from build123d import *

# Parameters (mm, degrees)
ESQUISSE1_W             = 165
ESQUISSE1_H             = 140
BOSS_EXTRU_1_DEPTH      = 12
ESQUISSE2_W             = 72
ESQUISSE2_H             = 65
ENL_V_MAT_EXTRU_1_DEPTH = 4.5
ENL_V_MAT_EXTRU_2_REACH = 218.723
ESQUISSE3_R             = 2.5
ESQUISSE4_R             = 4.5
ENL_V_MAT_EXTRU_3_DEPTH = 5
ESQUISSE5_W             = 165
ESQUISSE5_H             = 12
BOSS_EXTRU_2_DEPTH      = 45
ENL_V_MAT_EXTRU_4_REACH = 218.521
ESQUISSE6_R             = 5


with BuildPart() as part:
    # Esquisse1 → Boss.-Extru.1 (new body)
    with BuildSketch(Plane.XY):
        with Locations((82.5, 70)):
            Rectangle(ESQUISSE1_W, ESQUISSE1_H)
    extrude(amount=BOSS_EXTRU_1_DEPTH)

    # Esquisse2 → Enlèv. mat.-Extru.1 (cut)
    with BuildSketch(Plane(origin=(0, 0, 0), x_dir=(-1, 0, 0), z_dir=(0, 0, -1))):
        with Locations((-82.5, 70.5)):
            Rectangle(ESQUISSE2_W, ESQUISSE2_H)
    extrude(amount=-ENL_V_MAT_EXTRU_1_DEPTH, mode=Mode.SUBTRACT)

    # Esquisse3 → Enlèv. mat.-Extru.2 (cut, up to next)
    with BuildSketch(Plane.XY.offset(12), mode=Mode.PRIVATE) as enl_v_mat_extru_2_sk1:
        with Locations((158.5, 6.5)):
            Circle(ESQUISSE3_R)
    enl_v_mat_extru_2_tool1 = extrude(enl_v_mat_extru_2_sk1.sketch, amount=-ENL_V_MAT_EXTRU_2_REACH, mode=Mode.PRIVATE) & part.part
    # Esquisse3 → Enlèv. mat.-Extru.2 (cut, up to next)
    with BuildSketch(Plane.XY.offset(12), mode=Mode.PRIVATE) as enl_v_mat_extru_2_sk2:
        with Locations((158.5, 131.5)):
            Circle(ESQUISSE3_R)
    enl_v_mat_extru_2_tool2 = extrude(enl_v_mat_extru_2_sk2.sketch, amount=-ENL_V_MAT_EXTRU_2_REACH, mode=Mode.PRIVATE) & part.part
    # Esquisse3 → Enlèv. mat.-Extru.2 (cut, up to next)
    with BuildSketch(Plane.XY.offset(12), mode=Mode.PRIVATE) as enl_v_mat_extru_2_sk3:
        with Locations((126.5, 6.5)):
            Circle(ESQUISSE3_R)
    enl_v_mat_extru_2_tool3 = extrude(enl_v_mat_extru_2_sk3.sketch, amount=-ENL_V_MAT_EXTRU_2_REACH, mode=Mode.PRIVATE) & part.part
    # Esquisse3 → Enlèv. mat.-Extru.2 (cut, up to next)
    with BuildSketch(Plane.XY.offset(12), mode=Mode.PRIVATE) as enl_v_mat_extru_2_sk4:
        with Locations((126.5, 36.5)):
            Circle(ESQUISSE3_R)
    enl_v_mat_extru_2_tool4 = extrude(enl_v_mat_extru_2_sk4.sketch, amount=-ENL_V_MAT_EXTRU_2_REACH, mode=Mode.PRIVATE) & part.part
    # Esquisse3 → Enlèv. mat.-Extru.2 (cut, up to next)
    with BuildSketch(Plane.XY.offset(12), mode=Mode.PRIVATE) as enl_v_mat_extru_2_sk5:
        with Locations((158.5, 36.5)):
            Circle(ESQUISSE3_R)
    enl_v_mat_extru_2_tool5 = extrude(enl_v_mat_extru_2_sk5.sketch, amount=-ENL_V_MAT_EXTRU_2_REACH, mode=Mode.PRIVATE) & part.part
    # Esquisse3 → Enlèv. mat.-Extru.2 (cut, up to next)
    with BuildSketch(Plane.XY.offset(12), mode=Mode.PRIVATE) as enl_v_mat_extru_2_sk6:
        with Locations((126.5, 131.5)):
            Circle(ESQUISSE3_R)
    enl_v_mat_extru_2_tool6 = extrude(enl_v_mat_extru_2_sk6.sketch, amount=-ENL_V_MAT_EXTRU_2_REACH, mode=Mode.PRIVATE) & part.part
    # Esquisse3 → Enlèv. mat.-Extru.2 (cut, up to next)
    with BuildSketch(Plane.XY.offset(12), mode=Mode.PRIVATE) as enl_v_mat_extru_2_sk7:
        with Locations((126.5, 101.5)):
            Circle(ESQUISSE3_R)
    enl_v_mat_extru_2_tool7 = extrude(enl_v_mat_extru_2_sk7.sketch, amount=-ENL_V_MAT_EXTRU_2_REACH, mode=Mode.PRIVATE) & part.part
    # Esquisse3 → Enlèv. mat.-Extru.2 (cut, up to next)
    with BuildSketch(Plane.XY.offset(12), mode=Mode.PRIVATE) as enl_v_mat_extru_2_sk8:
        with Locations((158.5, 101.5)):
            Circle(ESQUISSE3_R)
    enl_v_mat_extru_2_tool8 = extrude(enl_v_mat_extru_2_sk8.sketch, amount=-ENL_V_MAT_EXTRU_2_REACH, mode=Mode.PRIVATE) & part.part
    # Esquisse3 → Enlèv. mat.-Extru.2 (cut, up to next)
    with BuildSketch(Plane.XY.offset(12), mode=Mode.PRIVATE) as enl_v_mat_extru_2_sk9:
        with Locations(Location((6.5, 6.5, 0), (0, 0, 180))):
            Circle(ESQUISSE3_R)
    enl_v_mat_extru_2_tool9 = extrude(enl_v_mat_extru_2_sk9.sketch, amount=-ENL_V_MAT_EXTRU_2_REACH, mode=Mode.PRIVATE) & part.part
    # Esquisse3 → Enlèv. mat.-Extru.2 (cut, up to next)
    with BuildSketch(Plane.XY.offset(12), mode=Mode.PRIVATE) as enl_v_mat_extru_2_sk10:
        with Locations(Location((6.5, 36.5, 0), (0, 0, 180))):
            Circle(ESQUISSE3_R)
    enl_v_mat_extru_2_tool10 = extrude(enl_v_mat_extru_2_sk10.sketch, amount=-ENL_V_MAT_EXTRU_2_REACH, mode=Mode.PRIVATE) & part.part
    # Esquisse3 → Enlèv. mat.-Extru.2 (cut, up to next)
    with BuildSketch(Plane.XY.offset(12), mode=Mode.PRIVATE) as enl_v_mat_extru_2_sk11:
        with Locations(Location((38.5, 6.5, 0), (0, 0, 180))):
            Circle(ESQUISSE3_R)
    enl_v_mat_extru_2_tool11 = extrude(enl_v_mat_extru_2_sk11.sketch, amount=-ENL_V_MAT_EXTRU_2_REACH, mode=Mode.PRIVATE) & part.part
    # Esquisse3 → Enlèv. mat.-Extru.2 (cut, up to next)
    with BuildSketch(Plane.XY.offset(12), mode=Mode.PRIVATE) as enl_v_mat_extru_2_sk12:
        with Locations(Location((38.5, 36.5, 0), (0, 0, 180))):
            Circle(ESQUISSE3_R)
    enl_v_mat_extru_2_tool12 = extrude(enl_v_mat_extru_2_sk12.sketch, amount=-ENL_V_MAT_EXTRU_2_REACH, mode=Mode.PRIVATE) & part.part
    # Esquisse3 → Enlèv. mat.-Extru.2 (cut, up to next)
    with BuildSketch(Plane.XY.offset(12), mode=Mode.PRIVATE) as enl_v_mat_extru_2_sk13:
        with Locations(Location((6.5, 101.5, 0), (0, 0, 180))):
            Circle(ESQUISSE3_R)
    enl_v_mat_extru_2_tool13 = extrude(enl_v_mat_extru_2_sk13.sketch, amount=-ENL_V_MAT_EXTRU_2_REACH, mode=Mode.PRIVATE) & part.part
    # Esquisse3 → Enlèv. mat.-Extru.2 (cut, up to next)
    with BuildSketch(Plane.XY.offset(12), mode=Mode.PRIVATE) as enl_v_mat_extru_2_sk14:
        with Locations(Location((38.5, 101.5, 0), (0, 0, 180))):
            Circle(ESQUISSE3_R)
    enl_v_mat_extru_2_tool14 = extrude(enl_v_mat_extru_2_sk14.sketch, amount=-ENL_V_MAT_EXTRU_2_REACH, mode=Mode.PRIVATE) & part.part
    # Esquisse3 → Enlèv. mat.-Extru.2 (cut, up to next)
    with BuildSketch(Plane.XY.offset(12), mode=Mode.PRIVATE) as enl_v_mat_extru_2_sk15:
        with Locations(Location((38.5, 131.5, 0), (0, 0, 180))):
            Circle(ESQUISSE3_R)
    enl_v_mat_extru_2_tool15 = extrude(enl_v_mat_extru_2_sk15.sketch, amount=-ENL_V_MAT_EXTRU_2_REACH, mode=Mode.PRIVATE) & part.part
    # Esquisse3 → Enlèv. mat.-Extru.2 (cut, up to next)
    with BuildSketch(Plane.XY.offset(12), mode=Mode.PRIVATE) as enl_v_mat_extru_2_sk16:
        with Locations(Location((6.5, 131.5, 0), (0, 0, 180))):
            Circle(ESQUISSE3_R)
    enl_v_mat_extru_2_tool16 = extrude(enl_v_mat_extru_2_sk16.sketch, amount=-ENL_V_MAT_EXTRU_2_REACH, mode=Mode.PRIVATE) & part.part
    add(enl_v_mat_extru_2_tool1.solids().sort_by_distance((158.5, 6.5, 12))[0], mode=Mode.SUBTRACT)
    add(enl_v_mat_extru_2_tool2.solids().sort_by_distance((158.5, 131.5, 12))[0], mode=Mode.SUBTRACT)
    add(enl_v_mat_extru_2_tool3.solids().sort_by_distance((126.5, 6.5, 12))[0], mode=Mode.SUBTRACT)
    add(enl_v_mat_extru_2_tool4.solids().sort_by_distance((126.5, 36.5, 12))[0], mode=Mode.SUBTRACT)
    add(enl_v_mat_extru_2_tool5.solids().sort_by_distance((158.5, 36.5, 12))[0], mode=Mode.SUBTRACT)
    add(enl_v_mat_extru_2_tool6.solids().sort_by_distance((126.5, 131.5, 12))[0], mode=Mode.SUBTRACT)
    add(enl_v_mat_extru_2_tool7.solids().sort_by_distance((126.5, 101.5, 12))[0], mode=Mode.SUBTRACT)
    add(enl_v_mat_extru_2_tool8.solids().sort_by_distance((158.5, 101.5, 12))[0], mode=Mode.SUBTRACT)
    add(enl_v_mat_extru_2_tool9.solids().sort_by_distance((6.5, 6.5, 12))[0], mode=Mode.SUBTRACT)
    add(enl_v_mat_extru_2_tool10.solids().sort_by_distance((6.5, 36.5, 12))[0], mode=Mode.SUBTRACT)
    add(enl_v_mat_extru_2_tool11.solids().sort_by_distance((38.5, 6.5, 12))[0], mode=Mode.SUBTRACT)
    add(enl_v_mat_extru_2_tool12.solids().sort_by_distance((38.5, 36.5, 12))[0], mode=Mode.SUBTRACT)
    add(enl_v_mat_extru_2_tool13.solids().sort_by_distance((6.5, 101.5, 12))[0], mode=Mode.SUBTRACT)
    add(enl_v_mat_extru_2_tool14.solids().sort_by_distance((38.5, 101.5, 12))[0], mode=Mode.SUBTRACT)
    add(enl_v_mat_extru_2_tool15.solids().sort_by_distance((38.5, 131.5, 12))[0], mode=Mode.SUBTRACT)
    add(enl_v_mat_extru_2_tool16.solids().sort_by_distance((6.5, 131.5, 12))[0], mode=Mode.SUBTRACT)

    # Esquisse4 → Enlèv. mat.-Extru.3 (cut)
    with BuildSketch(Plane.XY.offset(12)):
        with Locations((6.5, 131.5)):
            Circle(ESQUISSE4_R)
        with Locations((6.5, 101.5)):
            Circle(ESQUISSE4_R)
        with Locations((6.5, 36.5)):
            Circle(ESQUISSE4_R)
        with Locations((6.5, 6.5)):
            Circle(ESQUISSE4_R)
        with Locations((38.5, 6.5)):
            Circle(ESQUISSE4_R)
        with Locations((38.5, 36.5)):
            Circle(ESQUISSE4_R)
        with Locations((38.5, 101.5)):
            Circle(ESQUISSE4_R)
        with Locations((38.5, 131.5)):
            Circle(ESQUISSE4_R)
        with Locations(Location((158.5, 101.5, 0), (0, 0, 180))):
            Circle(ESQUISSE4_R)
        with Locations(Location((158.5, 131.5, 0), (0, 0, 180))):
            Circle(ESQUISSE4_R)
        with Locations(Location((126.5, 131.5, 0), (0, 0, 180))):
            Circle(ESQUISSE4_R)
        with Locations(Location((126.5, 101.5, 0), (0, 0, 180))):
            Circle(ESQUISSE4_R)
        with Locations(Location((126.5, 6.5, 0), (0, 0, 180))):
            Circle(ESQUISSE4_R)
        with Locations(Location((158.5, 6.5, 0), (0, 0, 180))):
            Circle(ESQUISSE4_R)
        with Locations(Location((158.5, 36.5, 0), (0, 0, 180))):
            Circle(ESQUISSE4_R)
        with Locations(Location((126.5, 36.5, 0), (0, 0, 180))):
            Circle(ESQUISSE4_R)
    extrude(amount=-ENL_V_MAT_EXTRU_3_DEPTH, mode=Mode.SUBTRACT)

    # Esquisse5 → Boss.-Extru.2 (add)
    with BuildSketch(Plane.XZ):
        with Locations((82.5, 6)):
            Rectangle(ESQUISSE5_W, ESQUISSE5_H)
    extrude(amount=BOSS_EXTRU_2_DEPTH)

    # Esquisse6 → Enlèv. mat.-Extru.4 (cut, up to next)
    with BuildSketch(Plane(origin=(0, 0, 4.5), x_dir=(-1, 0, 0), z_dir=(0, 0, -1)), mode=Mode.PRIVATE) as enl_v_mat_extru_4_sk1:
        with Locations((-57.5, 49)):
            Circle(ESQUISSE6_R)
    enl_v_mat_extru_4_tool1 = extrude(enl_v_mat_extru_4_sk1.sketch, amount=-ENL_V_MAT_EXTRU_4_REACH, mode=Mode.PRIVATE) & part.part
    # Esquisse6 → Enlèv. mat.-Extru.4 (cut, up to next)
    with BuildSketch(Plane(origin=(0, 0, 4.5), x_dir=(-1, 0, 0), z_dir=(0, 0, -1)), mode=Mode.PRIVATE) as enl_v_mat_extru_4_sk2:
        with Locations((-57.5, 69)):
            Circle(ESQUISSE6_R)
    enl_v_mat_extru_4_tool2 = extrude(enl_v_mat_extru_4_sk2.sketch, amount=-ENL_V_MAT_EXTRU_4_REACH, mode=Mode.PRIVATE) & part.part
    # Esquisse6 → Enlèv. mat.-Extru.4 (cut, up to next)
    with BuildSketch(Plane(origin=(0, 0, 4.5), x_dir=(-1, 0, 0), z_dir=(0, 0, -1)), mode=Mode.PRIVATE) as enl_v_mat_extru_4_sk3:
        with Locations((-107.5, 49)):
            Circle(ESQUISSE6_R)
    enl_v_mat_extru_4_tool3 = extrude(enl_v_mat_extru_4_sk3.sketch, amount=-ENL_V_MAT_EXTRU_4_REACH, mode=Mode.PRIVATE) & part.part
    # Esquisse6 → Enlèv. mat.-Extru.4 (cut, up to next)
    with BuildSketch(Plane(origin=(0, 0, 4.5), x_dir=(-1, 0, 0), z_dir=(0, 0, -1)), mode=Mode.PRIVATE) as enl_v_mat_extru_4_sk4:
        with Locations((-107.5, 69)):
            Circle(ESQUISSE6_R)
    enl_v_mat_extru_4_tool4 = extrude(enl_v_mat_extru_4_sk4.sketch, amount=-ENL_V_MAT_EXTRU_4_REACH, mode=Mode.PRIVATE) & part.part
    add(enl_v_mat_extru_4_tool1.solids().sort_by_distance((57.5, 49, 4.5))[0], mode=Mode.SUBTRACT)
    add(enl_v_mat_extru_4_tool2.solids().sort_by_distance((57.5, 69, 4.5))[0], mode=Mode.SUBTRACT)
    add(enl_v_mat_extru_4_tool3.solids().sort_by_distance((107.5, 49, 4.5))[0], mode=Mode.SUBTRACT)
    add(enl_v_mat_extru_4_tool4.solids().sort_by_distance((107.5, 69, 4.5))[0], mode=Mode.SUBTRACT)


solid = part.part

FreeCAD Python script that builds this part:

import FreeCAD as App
import Part
import Sketcher

V = App.Vector
Q = App.Units.Quantity


def add_polygon(sketch, points):
    """Adds a closed chain of lines whose ends are joined by coincident constraints."""
    first, n = sketch.GeometryCount, len(points)
    for a, b in zip(points, points[1:] + points[:1]):
        sketch.addGeometry(Part.LineSegment(App.Vector(*a, 0), App.Vector(*b, 0)), False)
    for i in range(n):
        sketch.addConstraint(Sketcher.Constraint("Coincident", first + i, 2, first + (i + 1) % n, 1))

doc = App.newDocument("Part")
body = doc.addObject("PartDesign::Body", "Body")

# Sketch on XY plane
sketch1 = body.newObject("Sketcher::SketchObject", "Sketch")
sketch1.AttachmentSupport = (doc.getObject("XY_Plane"), [""])
sketch1.MapMode = "FlatFace"
add_polygon(sketch1, [(0, 140), (0, 0), (165, 0), (165, 140)])  # lines 0-3
sketch1.addConstraint(Sketcher.Constraint("Vertical", 0))
sketch1.addConstraint(Sketcher.Constraint("Horizontal", 1))
sketch1.addConstraint(Sketcher.Constraint("Vertical", 2))
sketch1.addConstraint(Sketcher.Constraint("Horizontal", 3))
sketch1.addConstraint(Sketcher.Constraint("Coincident", 0, 2, -1, 1))
sketch1.addConstraint(Sketcher.Constraint("DistanceX", 1, 1, 1, 2, Q("165 mm")))
sketch1.addConstraint(Sketcher.Constraint("DistanceY", 0, 2, 0, 1, Q("140 mm")))
pad1 = body.newObject("PartDesign::Pad", "Pad")
pad1.Profile = sketch1
pad1.Length = 12

# Sketch on XY plane
sketch2 = body.newObject("Sketcher::SketchObject", "Sketch001")
sketch2.AttachmentSupport = (doc.getObject("XY_Plane"), [""])
sketch2.MapMode = "FlatFace"
add_polygon(sketch2, [(118, 103), (118, 38), (46, 38), (46, 103)])  # lines 0-3
sketch2.addConstraint(Sketcher.Constraint("Vertical", 0))
sketch2.addConstraint(Sketcher.Constraint("Horizontal", 1))
sketch2.addConstraint(Sketcher.Constraint("Vertical", 2))
sketch2.addConstraint(Sketcher.Constraint("Horizontal", 3))
sketch2.addConstraint(Sketcher.Constraint("DistanceX", 1, 2, 1, 1, Q("72 mm")))
sketch2.addConstraint(Sketcher.Constraint("DistanceY", 0, 2, 0, 1, Q("65 mm")))
sketch2.addConstraint(Sketcher.Constraint("DistanceY", -1, 1, 0, 2, Q("38 mm")))
sketch2.addConstraint(Sketcher.Constraint("DistanceX", -1, 1, 0, 2, Q("118.5 mm")))
pocket1 = body.newObject("PartDesign::Pocket", "Pocket")
pocket1.Profile = sketch2
pocket1.Length = 4.5
pocket1.Reversed = True

# Sketch on XY plane
sketch3 = body.newObject("Sketcher::SketchObject", "Sketch002")
sketch3.AttachmentSupport = (doc.getObject("XY_Plane"), [""])
sketch3.MapMode = "FlatFace"
sketch3.AttachmentOffset = App.Placement(V(0, 0, 12), App.Rotation())
sketch3.addGeometry(Part.Circle(V(158.5, 6.5, 0), V(0, 0, 1), 2.5), False)
sketch3.addConstraint(Sketcher.Constraint("Diameter", 0, Q("5 mm")))
sketch3.addConstraint(Sketcher.Constraint("DistanceX", -1, 1, 0, 3, Q("158.5 mm")))
sketch3.addConstraint(Sketcher.Constraint("DistanceY", -1, 1, 0, 3, Q("6.5 mm")))
pocket2 = body.newObject("PartDesign::Pocket", "Pocket001")
pocket2.Profile = sketch3
pocket2.Type = "UpToFirst"

# Sketch on XY plane
sketch4 = body.newObject("Sketcher::SketchObject", "Sketch003")
sketch4.AttachmentSupport = (doc.getObject("XY_Plane"), [""])
sketch4.MapMode = "FlatFace"
sketch4.AttachmentOffset = App.Placement(V(0, 0, 12), App.Rotation())
sketch4.addGeometry(Part.Circle(V(158.5, 131.5, 0), V(0, 0, 1), 2.5), False)
sketch4.addConstraint(Sketcher.Constraint("Diameter", 0, Q("5 mm")))
sketch4.addConstraint(Sketcher.Constraint("DistanceX", -1, 1, 0, 3, Q("158.5 mm")))
sketch4.addConstraint(Sketcher.Constraint("DistanceY", -1, 1, 0, 3, Q("131.5 mm")))
pocket3 = body.newObject("PartDesign::Pocket", "Pocket002")
pocket3.Profile = sketch4
pocket3.Type = "UpToFirst"

# Sketch on XY plane
sketch5 = body.newObject("Sketcher::SketchObject", "Sketch004")
sketch5.AttachmentSupport = (doc.getObject("XY_Plane"), [""])
sketch5.MapMode = "FlatFace"
sketch5.AttachmentOffset = App.Placement(V(0, 0, 12), App.Rotation())
sketch5.addGeometry(Part.Circle(V(126.5, 6.5, 0), V(0, 0, 1), 2.5), False)
sketch5.addConstraint(Sketcher.Constraint("Diameter", 0, Q("5 mm")))
sketch5.addConstraint(Sketcher.Constraint("DistanceX", -1, 1, 0, 3, Q("126.5 mm")))
sketch5.addConstraint(Sketcher.Constraint("DistanceY", -1, 1, 0, 3, Q("6.5 mm")))
pocket4 = body.newObject("PartDesign::Pocket", "Pocket003")
pocket4.Profile = sketch5
pocket4.Type = "UpToFirst"

# Sketch on XY plane
sketch6 = body.newObject("Sketcher::SketchObject", "Sketch005")
sketch6.AttachmentSupport = (doc.getObject("XY_Plane"), [""])
sketch6.MapMode = "FlatFace"
sketch6.AttachmentOffset = App.Placement(V(0, 0, 12), App.Rotation())
sketch6.addGeometry(Part.Circle(V(126.5, 36.5, 0), V(0, 0, 1), 2.5), False)
sketch6.addConstraint(Sketcher.Constraint("Diameter", 0, Q("5 mm")))
sketch6.addConstraint(Sketcher.Constraint("DistanceX", -1, 1, 0, 3, Q("126.5 mm")))
sketch6.addConstraint(Sketcher.Constraint("DistanceY", -1, 1, 0, 3, Q("36.5 mm")))
pocket5 = body.newObject("PartDesign::Pocket", "Pocket004")
pocket5.Profile = sketch6
pocket5.Type = "UpToFirst"

# Sketch on XY plane
sketch7 = body.newObject("Sketcher::SketchObject", "Sketch006")
sketch7.AttachmentSupport = (doc.getObject("XY_Plane"), [""])
sketch7.MapMode = "FlatFace"
sketch7.AttachmentOffset = App.Placement(V(0, 0, 12), App.Rotation())
sketch7.addGeometry(Part.Circle(V(158.5, 36.5, 0), V(0, 0, 1), 2.5), False)
sketch7.addConstraint(Sketcher.Constraint("Diameter", 0, Q("5 mm")))
sketch7.addConstraint(Sketcher.Constraint("DistanceX", -1, 1, 0, 3, Q("158.5 mm")))
sketch7.addConstraint(Sketcher.Constraint("DistanceY", -1, 1, 0, 3, Q("36.5 mm")))
pocket6 = body.newObject("PartDesign::Pocket", "Pocket005")
pocket6.Profile = sketch7
pocket6.Type = "UpToFirst"

# Sketch on XY plane
sketch8 = body.newObject("Sketcher::SketchObject", "Sketch007")
sketch8.AttachmentSupport = (doc.getObject("XY_Plane"), [""])
sketch8.MapMode = "FlatFace"
sketch8.AttachmentOffset = App.Placement(V(0, 0, 12), App.Rotation())
sketch8.addGeometry(Part.Circle(V(126.5, 131.5, 0), V(0, 0, 1), 2.5), False)
sketch8.addConstraint(Sketcher.Constraint("Diameter", 0, Q("5 mm")))
sketch8.addConstraint(Sketcher.Constraint("DistanceX", -1, 1, 0, 3, Q("126.5 mm")))
sketch8.addConstraint(Sketcher.Constraint("DistanceY", -1, 1, 0, 3, Q("131.5 mm")))
pocket7 = body.newObject("PartDesign::Pocket", "Pocket006")
pocket7.Profile = sketch8
pocket7.Type = "UpToFirst"

# Sketch on XY plane
sketch9 = body.newObject("Sketcher::SketchObject", "Sketch008")
sketch9.AttachmentSupport = (doc.getObject("XY_Plane"), [""])
sketch9.MapMode = "FlatFace"
sketch9.AttachmentOffset = App.Placement(V(0, 0, 12), App.Rotation())
sketch9.addGeometry(Part.Circle(V(126.5, 101.5, 0), V(0, 0, 1), 2.5), False)
sketch9.addConstraint(Sketcher.Constraint("Diameter", 0, Q("5 mm")))
sketch9.addConstraint(Sketcher.Constraint("DistanceX", -1, 1, 0, 3, Q("126.5 mm")))
sketch9.addConstraint(Sketcher.Constraint("DistanceY", -1, 1, 0, 3, Q("101.5 mm")))
pocket8 = body.newObject("PartDesign::Pocket", "Pocket007")
pocket8.Profile = sketch9
pocket8.Type = "UpToFirst"

# Sketch on XY plane
sketch10 = body.newObject("Sketcher::SketchObject", "Sketch009")
sketch10.AttachmentSupport = (doc.getObject("XY_Plane"), [""])
sketch10.MapMode = "FlatFace"
sketch10.AttachmentOffset = App.Placement(V(0, 0, 12), App.Rotation())
sketch10.addGeometry(Part.Circle(V(158.5, 101.5, 0), V(0, 0, 1), 2.5), False)
sketch10.addConstraint(Sketcher.Constraint("Diameter", 0, Q("5 mm")))
sketch10.addConstraint(Sketcher.Constraint("DistanceX", -1, 1, 0, 3, Q("158.5 mm")))
sketch10.addConstraint(Sketcher.Constraint("DistanceY", -1, 1, 0, 3, Q("101.5 mm")))
pocket9 = body.newObject("PartDesign::Pocket", "Pocket008")
pocket9.Profile = sketch10
pocket9.Type = "UpToFirst"

# Sketch on XY plane
sketch11 = body.newObject("Sketcher::SketchObject", "Sketch010")
sketch11.AttachmentSupport = (doc.getObject("XY_Plane"), [""])
sketch11.MapMode = "FlatFace"
sketch11.AttachmentOffset = App.Placement(V(0, 0, 12), App.Rotation())
sketch11.addGeometry(Part.Circle(V(6.5, 6.5, 0), V(0, 0, 1), 2.5), False)
sketch11.addConstraint(Sketcher.Constraint("Diameter", 0, Q("5 mm")))
sketch11.addConstraint(Sketcher.Constraint("DistanceX", -1, 1, 0, 3, Q("6.5 mm")))
sketch11.addConstraint(Sketcher.Constraint("DistanceY", -1, 1, 0, 3, Q("6.5 mm")))
pocket10 = body.newObject("PartDesign::Pocket", "Pocket009")
pocket10.Profile = sketch11
pocket10.Type = "UpToFirst"

# Sketch on XY plane
sketch12 = body.newObject("Sketcher::SketchObject", "Sketch011")
sketch12.AttachmentSupport = (doc.getObject("XY_Plane"), [""])
sketch12.MapMode = "FlatFace"
sketch12.AttachmentOffset = App.Placement(V(0, 0, 12), App.Rotation())
sketch12.addGeometry(Part.Circle(V(6.5, 36.5, 0), V(0, 0, 1), 2.5), False)
sketch12.addConstraint(Sketcher.Constraint("Diameter", 0, Q("5 mm")))
sketch12.addConstraint(Sketcher.Constraint("DistanceX", -1, 1, 0, 3, Q("6.5 mm")))
sketch12.addConstraint(Sketcher.Constraint("DistanceY", -1, 1, 0, 3, Q("36.5 mm")))
pocket11 = body.newObject("PartDesign::Pocket", "Pocket010")
pocket11.Profile = sketch12
pocket11.Type = "UpToFirst"

# Sketch on XY plane
sketch13 = body.newObject("Sketcher::SketchObject", "Sketch012")
sketch13.AttachmentSupport = (doc.getObject("XY_Plane"), [""])
sketch13.MapMode = "FlatFace"
sketch13.AttachmentOffset = App.Placement(V(0, 0, 12), App.Rotation())
sketch13.addGeometry(Part.Circle(V(38.5, 6.5, 0), V(0, 0, 1), 2.5), False)
sketch13.addConstraint(Sketcher.Constraint("Diameter", 0, Q("5 mm")))
sketch13.addConstraint(Sketcher.Constraint("DistanceX", -1, 1, 0, 3, Q("38.5 mm")))
sketch13.addConstraint(Sketcher.Constraint("DistanceY", -1, 1, 0, 3, Q("6.5 mm")))
pocket12 = body.newObject("PartDesign::Pocket", "Pocket011")
pocket12.Profile = sketch13
pocket12.Type = "UpToFirst"

# Sketch on XY plane
sketch14 = body.newObject("Sketcher::SketchObject", "Sketch013")
sketch14.AttachmentSupport = (doc.getObject("XY_Plane"), [""])
sketch14.MapMode = "FlatFace"
sketch14.AttachmentOffset = App.Placement(V(0, 0, 12), App.Rotation())
sketch14.addGeometry(Part.Circle(V(38.5, 36.5, 0), V(0, 0, 1), 2.5), False)
sketch14.addConstraint(Sketcher.Constraint("Diameter", 0, Q("5 mm")))
sketch14.addConstraint(Sketcher.Constraint("DistanceX", -1, 1, 0, 3, Q("38.5 mm")))
sketch14.addConstraint(Sketcher.Constraint("DistanceY", -1, 1, 0, 3, Q("36.5 mm")))
pocket13 = body.newObject("PartDesign::Pocket", "Pocket012")
pocket13.Profile = sketch14
pocket13.Type = "UpToFirst"

# Sketch on XY plane
sketch15 = body.newObject("Sketcher::SketchObject", "Sketch014")
sketch15.AttachmentSupport = (doc.getObject("XY_Plane"), [""])
sketch15.MapMode = "FlatFace"
sketch15.AttachmentOffset = App.Placement(V(0, 0, 12), App.Rotation())
sketch15.addGeometry(Part.Circle(V(6.5, 101.5, 0), V(0, 0, 1), 2.5), False)
sketch15.addConstraint(Sketcher.Constraint("Diameter", 0, Q("5 mm")))
sketch15.addConstraint(Sketcher.Constraint("DistanceX", -1, 1, 0, 3, Q("6.5 mm")))
sketch15.addConstraint(Sketcher.Constraint("DistanceY", -1, 1, 0, 3, Q("101.5 mm")))
pocket14 = body.newObject("PartDesign::Pocket", "Pocket013")
pocket14.Profile = sketch15
pocket14.Type = "UpToFirst"

# Sketch on XY plane
sketch16 = body.newObject("Sketcher::SketchObject", "Sketch015")
sketch16.AttachmentSupport = (doc.getObject("XY_Plane"), [""])
sketch16.MapMode = "FlatFace"
sketch16.AttachmentOffset = App.Placement(V(0, 0, 12), App.Rotation())
sketch16.addGeometry(Part.Circle(V(38.5, 101.5, 0), V(0, 0, 1), 2.5), False)
sketch16.addConstraint(Sketcher.Constraint("Diameter", 0, Q("5 mm")))
sketch16.addConstraint(Sketcher.Constraint("DistanceX", -1, 1, 0, 3, Q("38.5 mm")))
sketch16.addConstraint(Sketcher.Constraint("DistanceY", -1, 1, 0, 3, Q("101.5 mm")))
pocket15 = body.newObject("PartDesign::Pocket", "Pocket014")
pocket15.Profile = sketch16
pocket15.Type = "UpToFirst"

# Sketch on XY plane
sketch17 = body.newObject("Sketcher::SketchObject", "Sketch016")
sketch17.AttachmentSupport = (doc.getObject("XY_Plane"), [""])
sketch17.MapMode = "FlatFace"
sketch17.AttachmentOffset = App.Placement(V(0, 0, 12), App.Rotation())
sketch17.addGeometry(Part.Circle(V(38.5, 131.5, 0), V(0, 0, 1), 2.5), False)
sketch17.addConstraint(Sketcher.Constraint("Diameter", 0, Q("5 mm")))
sketch17.addConstraint(Sketcher.Constraint("DistanceX", -1, 1, 0, 3, Q("38.5 mm")))
sketch17.addConstraint(Sketcher.Constraint("DistanceY", -1, 1, 0, 3, Q("131.5 mm")))
pocket16 = body.newObject("PartDesign::Pocket", "Pocket015")
pocket16.Profile = sketch17
pocket16.Type = "UpToFirst"

# Sketch on XY plane
sketch18 = body.newObject("Sketcher::SketchObject", "Sketch017")
sketch18.AttachmentSupport = (doc.getObject("XY_Plane"), [""])
sketch18.MapMode = "FlatFace"
sketch18.AttachmentOffset = App.Placement(V(0, 0, 12), App.Rotation())
sketch18.addGeometry(Part.Circle(V(6.5, 131.5, 0), V(0, 0, 1), 2.5), False)
sketch18.addConstraint(Sketcher.Constraint("Diameter", 0, Q("5 mm")))
sketch18.addConstraint(Sketcher.Constraint("DistanceX", -1, 1, 0, 3, Q("6.5 mm")))
sketch18.addConstraint(Sketcher.Constraint("DistanceY", -1, 1, 0, 3, Q("131.5 mm")))
pocket17 = body.newObject("PartDesign::Pocket", "Pocket016")
pocket17.Profile = sketch18
pocket17.Type = "UpToFirst"

# Sketch on XY plane
sketch19 = body.newObject("Sketcher::SketchObject", "Sketch018")
sketch19.AttachmentSupport = (doc.getObject("XY_Plane"), [""])
sketch19.MapMode = "FlatFace"
sketch19.AttachmentOffset = App.Placement(V(0, 0, 12), App.Rotation())
sketch19.addGeometry(Part.Circle(V(6.5, 131.5, 0), V(0, 0, 1), 4.5), False)
sketch19.addGeometry(Part.Circle(V(6.5, 101.5, 0), V(0, 0, 1), 4.5), False)
sketch19.addGeometry(Part.Circle(V(6.5, 36.5, 0), V(0, 0, 1), 4.5), False)
sketch19.addGeometry(Part.Circle(V(6.5, 6.5, 0), V(0, 0, 1), 4.5), False)
sketch19.addGeometry(Part.Circle(V(38.5, 6.5, 0), V(0, 0, 1), 4.5), False)
sketch19.addGeometry(Part.Circle(V(38.5, 36.5, 0), V(0, 0, 1), 4.5), False)
sketch19.addGeometry(Part.Circle(V(38.5, 101.5, 0), V(0, 0, 1), 4.5), False)
sketch19.addGeometry(Part.Circle(V(38.5, 131.5, 0), V(0, 0, 1), 4.5), False)
sketch19.addGeometry(Part.Circle(V(158.5, 101.5, 0), V(0, 0, 1), 4.5), False)
sketch19.addGeometry(Part.Circle(V(158.5, 131.5, 0), V(0, 0, 1), 4.5), False)
sketch19.addGeometry(Part.Circle(V(126.5, 131.5, 0), V(0, 0, 1), 4.5), False)
sketch19.addGeometry(Part.Circle(V(126.5, 101.5, 0), V(0, 0, 1), 4.5), False)
sketch19.addGeometry(Part.Circle(V(126.5, 6.5, 0), V(0, 0, 1), 4.5), False)
sketch19.addGeometry(Part.Circle(V(158.5, 6.5, 0), V(0, 0, 1), 4.5), False)
sketch19.addGeometry(Part.Circle(V(158.5, 36.5, 0), V(0, 0, 1), 4.5), False)
sketch19.addGeometry(Part.Circle(V(126.5, 36.5, 0), V(0, 0, 1), 4.5), False)
sketch19.addConstraint(Sketcher.Constraint("Equal", 0, 1))
sketch19.addConstraint(Sketcher.Constraint("Equal", 1, 2))
sketch19.addConstraint(Sketcher.Constraint("Equal", 2, 3))
sketch19.addConstraint(Sketcher.Constraint("Equal", 3, 4))
sketch19.addConstraint(Sketcher.Constraint("Equal", 4, 5))
sketch19.addConstraint(Sketcher.Constraint("Equal", 5, 6))
sketch19.addConstraint(Sketcher.Constraint("Equal", 6, 7))
sketch19.addConstraint(Sketcher.Constraint("Equal", 7, 8))
sketch19.addConstraint(Sketcher.Constraint("Equal", 8, 9))
sketch19.addConstraint(Sketcher.Constraint("Equal", 9, 10))
sketch19.addConstraint(Sketcher.Constraint("Equal", 10, 11))
sketch19.addConstraint(Sketcher.Constraint("Equal", 11, 12))
sketch19.addConstraint(Sketcher.Constraint("Equal", 12, 13))
sketch19.addConstraint(Sketcher.Constraint("Equal", 13, 14))
sketch19.addConstraint(Sketcher.Constraint("Equal", 14, 15))
sketch19.addConstraint(Sketcher.Constraint("Horizontal", 3, 3, 4, 3))
sketch19.addConstraint(Sketcher.Constraint("Horizontal", 2, 3, 5, 3))
sketch19.addConstraint(Sketcher.Constraint("Horizontal", 1, 3, 6, 3))
sketch19.addConstraint(Sketcher.Constraint("Horizontal", 0, 3, 7, 3))
sketch19.addConstraint(Sketcher.Constraint("Horizontal", 6, 3, 8, 3))
sketch19.addConstraint(Sketcher.Constraint("Horizontal", 7, 3, 9, 3))
sketch19.addConstraint(Sketcher.Constraint("Horizontal", 9, 3, 10, 3))
sketch19.addConstraint(Sketcher.Constraint("Horizontal", 8, 3, 11, 3))
sketch19.addConstraint(Sketcher.Constraint("Horizontal", 4, 3, 12, 3))
sketch19.addConstraint(Sketcher.Constraint("Horizontal", 12, 3, 13, 3))
sketch19.addConstraint(Sketcher.Constraint("Horizontal", 5, 3, 14, 3))
sketch19.addConstraint(Sketcher.Constraint("Horizontal", 14, 3, 15, 3))
sketch19.addConstraint(Sketcher.Constraint("Vertical", 0, 3, 1, 3))
sketch19.addConstraint(Sketcher.Constraint("Vertical", 1, 3, 2, 3))
sketch19.addConstraint(Sketcher.Constraint("Vertical", 2, 3, 3, 3))
sketch19.addConstraint(Sketcher.Constraint("Vertical", 4, 3, 5, 3))
sketch19.addConstraint(Sketcher.Constraint("Vertical", 5, 3, 6, 3))
sketch19.addConstraint(Sketcher.Constraint("Vertical", 6, 3, 7, 3))
sketch19.addConstraint(Sketcher.Constraint("Vertical", 8, 3, 9, 3))
sketch19.addConstraint(Sketcher.Constraint("Vertical", 10, 3, 11, 3))
sketch19.addConstraint(Sketcher.Constraint("Vertical", 11, 3, 12, 3))
sketch19.addConstraint(Sketcher.Constraint("Vertical", 9, 3, 13, 3))
sketch19.addConstraint(Sketcher.Constraint("Vertical", 13, 3, 14, 3))
sketch19.addConstraint(Sketcher.Constraint("Vertical", 12, 3, 15, 3))
sketch19.addConstraint(Sketcher.Constraint("Diameter", 0, Q("9 mm")))
sketch19.addConstraint(Sketcher.Constraint("DistanceY", 1, 3, 0, 3, Q("30 mm")))
sketch19.addConstraint(Sketcher.Constraint("DistanceY", 2, 3, 1, 3, Q("65 mm")))
sketch19.addConstraint(Sketcher.Constraint("DistanceY", 3, 3, 2, 3, Q("30 mm")))
sketch19.addConstraint(Sketcher.Constraint("DistanceX", 3, 3, 4, 3, Q("32 mm")))
sketch19.addConstraint(Sketcher.Constraint("DistanceX", 6, 3, 8, 3, Q("120 mm")))
sketch19.addConstraint(Sketcher.Constraint("DistanceX", 10, 3, 9, 3, Q("32 mm")))
sketch19.addConstraint(Sketcher.Constraint("DistanceX", -1, 1, 0, 3, Q("6.5 mm")))
sketch19.addConstraint(Sketcher.Constraint("DistanceY", -1, 1, 0, 3, Q("131.5 mm")))
pocket18 = body.newObject("PartDesign::Pocket", "Pocket017")
pocket18.Profile = sketch19
pocket18.Length = 5

# Sketch on XZ plane
sketch20 = body.newObject("Sketcher::SketchObject", "Sketch019")
sketch20.AttachmentSupport = (doc.getObject("XZ_Plane"), [""])
sketch20.MapMode = "FlatFace"
add_polygon(sketch20, [(0, 12), (0, 0), (165, 0), (165, 12)])  # lines 0-3
sketch20.addConstraint(Sketcher.Constraint("Vertical", 0))
sketch20.addConstraint(Sketcher.Constraint("Horizontal", 1))
sketch20.addConstraint(Sketcher.Constraint("Vertical", 2))
sketch20.addConstraint(Sketcher.Constraint("Horizontal", 3))
sketch20.addConstraint(Sketcher.Constraint("Coincident", 0, 2, -1, 1))
sketch20.addConstraint(Sketcher.Constraint("DistanceX", 1, 1, 1, 2, Q("165 mm")))
sketch20.addConstraint(Sketcher.Constraint("DistanceY", 0, 2, 0, 1, Q("12 mm")))
pad2 = body.newObject("PartDesign::Pad", "Pad001")
pad2.Profile = sketch20
pad2.Length = 45

# Sketch on XY plane
sketch21 = body.newObject("Sketcher::SketchObject", "Sketch020")
sketch21.AttachmentSupport = (doc.getObject("XY_Plane"), [""])
sketch21.MapMode = "FlatFace"
sketch21.AttachmentOffset = App.Placement(V(0, 0, 4.5), App.Rotation())
sketch21.addGeometry(Part.Circle(V(58, 49, 0), V(0, 0, 1), 5), False)
sketch21.addConstraint(Sketcher.Constraint("Diameter", 0, Q("10 mm")))
sketch21.addConstraint(Sketcher.Constraint("DistanceY", -1, 1, 0, 3, Q("49 mm")))
sketch21.addConstraint(Sketcher.Constraint("DistanceX", -1, 1, 0, 3, Q("57.5 mm")))
pocket19 = body.newObject("PartDesign::Pocket", "Pocket018")
pocket19.Profile = sketch21
pocket19.Type = "UpToFirst"
pocket19.Reversed = True

# Sketch on XY plane
sketch22 = body.newObject("Sketcher::SketchObject", "Sketch021")
sketch22.AttachmentSupport = (doc.getObject("XY_Plane"), [""])
sketch22.MapMode = "FlatFace"
sketch22.AttachmentOffset = App.Placement(V(0, 0, 4.5), App.Rotation())
sketch22.addGeometry(Part.Circle(V(58, 69, 0), V(0, 0, 1), 5), False)
sketch22.addConstraint(Sketcher.Constraint("Diameter", 0, Q("10 mm")))
sketch22.addConstraint(Sketcher.Constraint("DistanceY", -1, 1, 0, 3, Q("69 mm")))
sketch22.addConstraint(Sketcher.Constraint("DistanceX", -1, 1, 0, 3, Q("57.5 mm")))
pocket20 = body.newObject("PartDesign::Pocket", "Pocket019")
pocket20.Profile = sketch22
pocket20.Type = "UpToFirst"
pocket20.Reversed = True

# Sketch on XY plane
sketch23 = body.newObject("Sketcher::SketchObject", "Sketch022")
sketch23.AttachmentSupport = (doc.getObject("XY_Plane"), [""])
sketch23.MapMode = "FlatFace"
sketch23.AttachmentOffset = App.Placement(V(0, 0, 4.5), App.Rotation())
sketch23.addGeometry(Part.Circle(V(108, 49, 0), V(0, 0, 1), 5), False)
sketch23.addConstraint(Sketcher.Constraint("Diameter", 0, Q("10 mm")))
sketch23.addConstraint(Sketcher.Constraint("DistanceY", -1, 1, 0, 3, Q("49 mm")))
sketch23.addConstraint(Sketcher.Constraint("DistanceX", -1, 1, 0, 3, Q("107.5 mm")))
pocket21 = body.newObject("PartDesign::Pocket", "Pocket020")
pocket21.Profile = sketch23
pocket21.Type = "UpToFirst"
pocket21.Reversed = True

# Sketch on XY plane
sketch24 = body.newObject("Sketcher::SketchObject", "Sketch023")
sketch24.AttachmentSupport = (doc.getObject("XY_Plane"), [""])
sketch24.MapMode = "FlatFace"
sketch24.AttachmentOffset = App.Placement(V(0, 0, 4.5), App.Rotation())
sketch24.addGeometry(Part.Circle(V(108, 69, 0), V(0, 0, 1), 5), False)
sketch24.addConstraint(Sketcher.Constraint("Diameter", 0, Q("10 mm")))
sketch24.addConstraint(Sketcher.Constraint("DistanceY", -1, 1, 0, 3, Q("69 mm")))
sketch24.addConstraint(Sketcher.Constraint("DistanceX", -1, 1, 0, 3, Q("107.5 mm")))
pocket22 = body.newObject("PartDesign::Pocket", "Pocket021")
pocket22.Profile = sketch24
pocket22.Type = "UpToFirst"
pocket22.Reversed = True

doc.recompute()
